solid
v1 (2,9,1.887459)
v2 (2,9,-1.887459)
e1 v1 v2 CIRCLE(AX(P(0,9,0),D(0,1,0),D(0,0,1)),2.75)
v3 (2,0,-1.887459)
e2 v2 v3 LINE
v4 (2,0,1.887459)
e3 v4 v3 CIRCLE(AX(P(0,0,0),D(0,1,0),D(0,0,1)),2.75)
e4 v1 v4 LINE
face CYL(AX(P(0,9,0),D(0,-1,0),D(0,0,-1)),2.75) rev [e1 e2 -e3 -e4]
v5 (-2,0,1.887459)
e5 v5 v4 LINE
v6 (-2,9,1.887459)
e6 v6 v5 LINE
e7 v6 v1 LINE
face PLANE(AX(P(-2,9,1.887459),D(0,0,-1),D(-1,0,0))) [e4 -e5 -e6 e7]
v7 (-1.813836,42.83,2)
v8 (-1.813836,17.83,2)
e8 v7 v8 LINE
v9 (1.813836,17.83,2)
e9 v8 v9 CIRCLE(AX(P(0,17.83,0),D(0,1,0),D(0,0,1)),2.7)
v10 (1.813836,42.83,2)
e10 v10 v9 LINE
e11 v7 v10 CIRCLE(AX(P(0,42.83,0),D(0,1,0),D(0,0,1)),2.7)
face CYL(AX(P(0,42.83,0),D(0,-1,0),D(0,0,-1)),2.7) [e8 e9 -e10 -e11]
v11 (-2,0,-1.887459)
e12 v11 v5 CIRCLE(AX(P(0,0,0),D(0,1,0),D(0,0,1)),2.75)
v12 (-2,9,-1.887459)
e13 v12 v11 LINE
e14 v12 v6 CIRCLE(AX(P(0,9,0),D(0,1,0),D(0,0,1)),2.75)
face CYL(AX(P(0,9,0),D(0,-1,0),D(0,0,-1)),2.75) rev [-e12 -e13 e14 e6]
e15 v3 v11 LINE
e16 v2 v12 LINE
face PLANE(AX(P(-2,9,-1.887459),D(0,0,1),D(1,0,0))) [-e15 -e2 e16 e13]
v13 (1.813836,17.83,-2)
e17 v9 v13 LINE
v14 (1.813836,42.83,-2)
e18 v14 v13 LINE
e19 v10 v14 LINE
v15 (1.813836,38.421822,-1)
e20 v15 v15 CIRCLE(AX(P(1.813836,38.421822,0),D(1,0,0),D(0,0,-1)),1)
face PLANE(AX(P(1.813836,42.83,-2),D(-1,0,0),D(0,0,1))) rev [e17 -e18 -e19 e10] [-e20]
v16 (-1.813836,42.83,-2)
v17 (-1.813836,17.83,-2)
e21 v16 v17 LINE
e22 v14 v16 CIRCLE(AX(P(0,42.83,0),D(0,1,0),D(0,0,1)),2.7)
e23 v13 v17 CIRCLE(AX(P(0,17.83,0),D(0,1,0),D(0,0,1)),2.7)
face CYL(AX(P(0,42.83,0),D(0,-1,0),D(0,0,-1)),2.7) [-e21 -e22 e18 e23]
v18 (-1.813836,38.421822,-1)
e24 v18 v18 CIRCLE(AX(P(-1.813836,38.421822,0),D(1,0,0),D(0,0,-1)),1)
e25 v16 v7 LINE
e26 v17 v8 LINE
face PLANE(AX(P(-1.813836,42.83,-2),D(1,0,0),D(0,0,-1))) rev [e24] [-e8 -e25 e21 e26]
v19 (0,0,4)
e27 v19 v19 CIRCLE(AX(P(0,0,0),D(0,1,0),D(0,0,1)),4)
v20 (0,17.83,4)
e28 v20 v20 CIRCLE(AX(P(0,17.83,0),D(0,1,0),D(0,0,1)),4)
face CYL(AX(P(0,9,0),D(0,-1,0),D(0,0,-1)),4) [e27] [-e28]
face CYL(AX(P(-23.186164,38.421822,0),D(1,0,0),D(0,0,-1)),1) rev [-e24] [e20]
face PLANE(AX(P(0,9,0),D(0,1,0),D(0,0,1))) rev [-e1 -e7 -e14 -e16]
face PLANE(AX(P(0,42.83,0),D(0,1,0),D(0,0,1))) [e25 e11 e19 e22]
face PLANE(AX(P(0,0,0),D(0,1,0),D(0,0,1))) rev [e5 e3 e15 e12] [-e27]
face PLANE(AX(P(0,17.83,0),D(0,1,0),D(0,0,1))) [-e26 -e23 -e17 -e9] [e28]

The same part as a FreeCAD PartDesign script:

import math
import FreeCAD as App
import Part
import Sketcher

V = App.Vector

doc = App.newDocument("Part")
body = doc.addObject("PartDesign::Body", "Body")

sketch1 = body.newObject("Sketcher::SketchObject", "Sketch")
sketch1.AttachmentSupport = (doc.getObject("XZ_Plane"), [""])
sketch1.MapMode = "FlatFace"
sketch1.addGeometry(Part.Circle(V(0, 0, 0), V(0, 0, 1), 4), False)
sketch1.addGeometry(Part.ArcOfCircle(Part.Circle(V(0, 0, 0), V(0, 0, 1), 2.8), math.radians(137), math.radians(223)), False)
sketch1.addGeometry(Part.LineSegment(V(-2, -1.9, 0), V(2, -1.9, 0)), False)
sketch1.addGeometry(Part.ArcOfCircle(Part.Circle(V(0, 0, 0), V(0, 0, 1), 2.8), math.radians(-43), math.radians(43)), False)
sketch1.addGeometry(Part.LineSegment(V(2, 1.9, 0), V(-2, 1.9, 0)), False)
sketch1.addConstraint(Sketcher.Constraint("Coincident", 1, 2, 2, 1))
sketch1.addConstraint(Sketcher.Constraint("Coincident", 2, 2, 3, 1))
sketch1.addConstraint(Sketcher.Constraint("Coincident", 3, 2, 4, 1))
sketch1.addConstraint(Sketcher.Constraint("Coincident", 4, 2, 1, 1))
sketch1.addConstraint(Sketcher.Constraint("Horizontal", 2))
sketch1.addConstraint(Sketcher.Constraint("Horizontal", 4))
sketch1.addConstraint(Sketcher.Constraint("Coincident", 0, 3, -1, 1))
sketch1.addConstraint(Sketcher.Constraint("Coincident", 1, 3, -1, 1))
sketch1.addConstraint(Sketcher.Constraint("Coincident", 3, 3, -1, 1))
sketch1.addConstraint(Sketcher.Constraint("Equal", 1, 3))
sketch1.addConstraint(Sketcher.Constraint("Vertical", 2, 2, 3, 2))
sketch1.addConstraint(Sketcher.Constraint("Diameter", 0, 8.0))
sketch1.addConstraint(Sketcher.Constraint("DistanceX", 2, 1, 2, 2, 4.0))
sketch1.addConstraint(Sketcher.Constraint("Radius", 1, 2.75))
pad1 = body.newObject("PartDesign::Pad", "Pad")
pad1.Profile = sketch1
pad1.Length = 9
pad1.Reversed = True

sketch2 = body.newObject("Sketcher::SketchObject", "Sketch001")
sketch2.AttachmentSupport = (doc.getObject("XZ_Plane"), [""])
sketch2.MapMode = "FlatFace"
sketch2.AttachmentOffset = App.Placement(V(0, 0, -9), App.Rotation())
sketch2.addGeometry(Part.Circle(V(0, 0, 0), V(0, 0, 1), 4), False)
sketch2.addConstraint(Sketcher.Constraint("Coincident", 0, 3, -1, 1))
sketch2.addConstraint(Sketcher.Constraint("Diameter", 0, 8.0))
pad2 = body.newObject("PartDesign::Pad", "Pad001")
pad2.Profile = sketch2
pad2.Length = 8.83
pad2.Reversed = True

sketch3 = body.newObject("Sketcher::SketchObject", "Sketch002")
sketch3.AttachmentSupport = (doc.getObject("XZ_Plane"), [""])
sketch3.MapMode = "FlatFace"
sketch3.AttachmentOffset = App.Placement(V(0, 0, -17.83), App.Rotation())
sketch3.addGeometry(Part.LineSegment(V(1.8, 2, 0), V(1.8, -2, 0)), False)
sketch3.addGeometry(Part.ArcOfCircle(Part.Circle(V(0, 0, 0), V(0, 0, 1), 2.7), math.radians(-132), math.radians(-48)), False)
sketch3.addGeometry(Part.LineSegment(V(-1.8, -2, 0), V(-1.8, 2, 0)), False)
sketch3.addGeometry(Part.ArcOfCircle(Part.Circle(V(0, 0, 0), V(0, 0, 1), 2.7), math.radians(48), math.radians(132)), False)
sketch3.addConstraint(Sketcher.Constraint("Coincident", 0, 2, 1, 2))
sketch3.addConstraint(Sketcher.Constraint("Coincident", 1, 1, 2, 1))
sketch3.addConstraint(Sketcher.Constraint("Coincident", 2, 2, 3, 2))
sketch3.addConstraint(Sketcher.Constraint("Coincident", 3, 1, 0, 1))
sketch3.addConstraint(Sketcher.Constraint("Vertical", 0))
sketch3.addConstraint(Sketcher.Constraint("Vertical", 2))
sketch3.addConstraint(Sketcher.Constraint("Coincident", 1, 3, -1, 1))
sketch3.addConstraint(Sketcher.Constraint("Coincident", 3, 3, -1, 1))
sketch3.addConstraint(Sketcher.Constraint("Equal", 1, 3))
sketch3.addConstraint(Sketcher.Constraint("Horizontal", 0, 2, 1, 1))
sketch3.addConstraint(Sketcher.Constraint("Radius", 1, 2.7))
sketch3.addConstraint(Sketcher.Constraint("DistanceY", 0, 2, 0, 1, 4.0))
pad3 = body.newObject("PartDesign::Pad", "Pad002")
pad3.Profile = sketch3
pad3.Length = 25
pad3.Reversed = True

sketch4 = body.newObject("Sketcher::SketchObject", "Sketch003")
sketch4.AttachmentSupport = (doc.getObject("YZ_Plane"), [""])
sketch4.MapMode = "FlatFace"
sketch4.AttachmentOffset = App.Placement(V(0, 0, 1.813836), App.Rotation())
sketch4.addGeometry(Part.Circle(V(38.4, 0, 0), V(0, 0, 1), 1), False)
sketch4.addConstraint(Sketcher.Constraint("PointOnObject", 0, 3, -1))
sketch4.addConstraint(Sketcher.Constraint("Diameter", 0, 2.0))
sketch4.addConstraint(Sketcher.Constraint("DistanceX", -1, 1, 0, 3, 38.421822))
pocket1 = body.newObject("PartDesign::Pocket", "Pocket")
pocket1.Profile = sketch4
pocket1.Length = 25

doc.recompute()
